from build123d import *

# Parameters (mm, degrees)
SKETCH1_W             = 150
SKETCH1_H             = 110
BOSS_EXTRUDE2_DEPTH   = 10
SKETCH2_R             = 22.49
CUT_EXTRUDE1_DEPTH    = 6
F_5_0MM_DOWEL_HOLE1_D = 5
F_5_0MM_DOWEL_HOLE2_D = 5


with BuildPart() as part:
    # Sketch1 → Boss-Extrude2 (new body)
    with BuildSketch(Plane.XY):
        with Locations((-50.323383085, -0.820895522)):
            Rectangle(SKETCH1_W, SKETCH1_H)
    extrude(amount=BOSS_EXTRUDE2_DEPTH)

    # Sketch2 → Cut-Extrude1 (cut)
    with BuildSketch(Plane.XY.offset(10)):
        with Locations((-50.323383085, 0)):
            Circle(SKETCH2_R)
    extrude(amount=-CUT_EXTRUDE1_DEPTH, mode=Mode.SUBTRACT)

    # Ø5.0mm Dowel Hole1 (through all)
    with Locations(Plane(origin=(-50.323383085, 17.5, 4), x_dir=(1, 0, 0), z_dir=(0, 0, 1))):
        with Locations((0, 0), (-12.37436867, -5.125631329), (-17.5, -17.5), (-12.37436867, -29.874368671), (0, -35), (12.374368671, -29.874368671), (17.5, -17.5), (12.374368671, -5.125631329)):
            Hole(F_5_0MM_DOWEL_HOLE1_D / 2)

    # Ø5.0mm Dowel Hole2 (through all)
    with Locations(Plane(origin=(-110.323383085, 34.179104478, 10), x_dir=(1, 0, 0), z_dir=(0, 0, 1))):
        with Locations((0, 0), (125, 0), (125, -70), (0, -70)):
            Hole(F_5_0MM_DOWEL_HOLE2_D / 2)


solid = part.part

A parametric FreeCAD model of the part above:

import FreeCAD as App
import Part
import Sketcher


def add_polygon(sketch, points):
    """Adds a closed chain of lines whose ends are joined by coincident constraints."""
    first, n = sketch.GeometryCount, len(points)
    for a, b in zip(points, points[1:] + points[:1]):
        sketch.addGeometry(Part.LineSegment(App.Vector(*a, 0), App.Vector(*b, 0)), False)
    for i in range(n):
        sketch.addConstraint(Sketcher.Constraint("Coincident", first + i, 2, first + (i + 1) % n, 1))

doc = App.newDocument("Part")
body = doc.addObject("PartDesign::Body", "Body")

sketch1 = body.newObject("Sketcher::SketchObject", "Sketch")
sketch1.AttachmentSupport = (doc.getObject("XY_Plane"), [""])
sketch1.MapMode = "FlatFace"
add_polygon(sketch1, [(-125.323383, 54.179104), (-125.323383, -55.820896), (24.676617, -55.820896), (24.676617, 54.179104)])
sketch1.addConstraint(Sketcher.Constraint("Vertical", 0))
sketch1.addConstraint(Sketcher.Constraint("Horizontal", 1))
sketch1.addConstraint(Sketcher.Constraint("Vertical", 2))
sketch1.addConstraint(Sketcher.Constraint("Horizontal", 3))
sketch1.addConstraint(Sketcher.Constraint("DistanceX", 1, 1, 1, 2, 150.0))
sketch1.addConstraint(Sketcher.Constraint("DistanceY", 0, 2, 0, 1, 110.0))
sketch1.addConstraint(Sketcher.Constraint("DistanceX", 0, 2, -1, 1, 125.323383))
sketch1.addConstraint(Sketcher.Constraint("DistanceY", 0, 2, -1, 1, 55.820896))
pad1 = body.newObject("PartDesign::Pad", "Pad")
pad1.Profile = sketch1
pad1.Length = 10

sketch2 = body.newObject("Sketcher::SketchObject", "Sketch001")
sketch2.AttachmentSupport = (doc.getObject("XY_Plane"), [""])
sketch2.MapMode = "FlatFace"
sketch2.AttachmentOffset = App.Placement(App.Vector(0, 0, 10), App.Rotation())
sketch2.addGeometry(Part.Circle(App.Vector(-50.323383, 0, 0), App.Vector(0, 0, 1), 22.49), False)
sketch2.addConstraint(Sketcher.Constraint("PointOnObject", 0, 3, -1))
sketch2.addConstraint(Sketcher.Constraint("Diameter", 0, 44.98))
sketch2.addConstraint(Sketcher.Constraint("DistanceX", 0, 3, -1, 1, 50.323383))
pocket1 = body.newObject("PartDesign::Pocket", "Pocket")
pocket1.Profile = sketch2
pocket1.Length = 6

sketch3 = body.newObject("Sketcher::SketchObject", "Sketch002")
sketch3.AttachmentSupport = (doc.getObject("XY_Plane"), [""])
sketch3.MapMode = "FlatFace"
sketch3.AttachmentOffset = App.Placement(App.Vector(0, 0, 4), App.Rotation())
sketch3.addGeometry(Part.Circle(App.Vector(-50.323383, 17.5, 0), App.Vector(0, 0, 1), 2.5), False)
sketch3.addGeometry(Part.Circle(App.Vector(-62.697752, 12.374369, 0), App.Vector(0, 0, 1), 2.5), False)
sketch3.addGeometry(Part.Circle(App.Vector(-67.823383, 0, 0), App.Vector(0, 0, 1), 2.5), False)
sketch3.addGeometry(Part.Circle(App.Vector(-62.697752, -12.374369, 0), App.Vector(0, 0, 1), 2.5), False)
sketch3.addGeometry(Part.Circle(App.Vector(-50.323383, -17.5, 0), App.Vector(0, 0, 1), 2.5), False)
sketch3.addGeometry(Part.Circle(App.Vector(-37.949014, -12.374369, 0), App.Vector(0, 0, 1), 2.5), False)
sketch3.addGeometry(Part.Circle(App.Vector(-32.823383, 0, 0), App.Vector(0, 0, 1), 2.5), False)
sketch3.addGeometry(Part.Circle(App.Vector(-37.949014, 12.374369, 0), App.Vector(0, 0, 1), 2.5), False)
sketch3.addConstraint(Sketcher.Constraint("Equal", 0, 1))
sketch3.addConstraint(Sketcher.Constraint("Equal", 1, 2))
sketch3.addConstraint(Sketcher.Constraint("Equal", 2, 3))
sketch3.addConstraint(Sketcher.Constraint("Equal", 3, 4))
sketch3.addConstraint(Sketcher.Constraint("Equal", 4, 5))
sketch3.addConstraint(Sketcher.Constraint("Equal", 5, 6))
sketch3.addConstraint(Sketcher.Constraint("Equal", 6, 7))
sketch3.addConstraint(Sketcher.Constraint("Symmetric", 1, 3, 3, 3, -1))
sketch3.addConstraint(Sketcher.Constraint("Symmetric", 0, 3, 4, 3, -1))
sketch3.addConstraint(Sketcher.Constraint("Symmetric", 5, 3, 7, 3, -1))
sketch3.addConstraint(Sketcher.Constraint("PointOnObject", 2, 3, -1))
sketch3.addConstraint(Sketcher.Constraint("PointOnObject", 6, 3, -1))
sketch3.addConstraint(Sketcher.Constraint("Horizontal", 3, 3, 5, 3))
sketch3.addConstraint(Sketcher.Constraint("Diameter", 0, 5.0))
sketch3.addConstraint(Sketcher.Constraint("DistanceY", 4, 3, 0, 3, 35.0))
sketch3.addConstraint(Sketcher.Constraint("DistanceX", 2, 3, 0, 3, 17.5))
sketch3.addConstraint(Sketcher.Constraint("DistanceX", 0, 3, 6, 3, 17.5))
sketch3.addConstraint(Sketcher.Constraint("DistanceX", 1, 3, -1, 1, 62.697752))
sketch3.addConstraint(Sketcher.Constraint("DistanceY", -1, 1, 1, 3, 12.374369))
sketch3.addConstraint(Sketcher.Constraint("DistanceX", 1, 3, 0, 3, 12.374369))
sketch3.addConstraint(Sketcher.Constraint("DistanceX", 4, 3, 5, 3, 12.374369))
doc.recompute()
hole = body.newObject("PartDesign::Hole", "Hole")
hole.Profile = sketch3
hole.ThreadType = "None"
hole.Diameter = 5
hole.DepthType = "ThroughAll"

sketch4 = body.newObject("Sketcher::SketchObject", "Sketch003")
sketch4.AttachmentSupport = (doc.getObject("XY_Plane"), [""])
sketch4.MapMode = "FlatFace"
sketch4.AttachmentOffset = App.Placement(App.Vector(0, 0, 10), App.Rotation())
sketch4.addGeometry(Part.Circle(App.Vector(-110.323383, 34.179104, 0), App.Vector(0, 0, 1), 2.5), False)
sketch4.addGeometry(Part.Circle(App.Vector(14.676617, 34.179104, 0), App.Vector(0, 0, 1), 2.5), False)
sketch4.addGeometry(Part.Circle(App.Vector(14.676617, -35.820896, 0), App.Vector(0, 0, 1), 2.5), False)
sketch4.addGeometry(Part.Circle(App.Vector(-110.323383, -35.820896, 0), App.Vector(0, 0, 1), 2.5), False)
sketch4.addConstraint(Sketcher.Constraint("Equal", 0, 1))
sketch4.addConstraint(Sketcher.Constraint("Equal", 1, 2))
sketch4.addConstraint(Sketcher.Constraint("Equal", 2, 3))
sketch4.addConstraint(Sketcher.Constraint("Horizontal", 0, 3, 1, 3))
sketch4.addConstraint(Sketcher.Constraint("Horizontal", 2, 3, 3, 3))
sketch4.addConstraint(Sketcher.Constraint("Vertical", 1, 3, 2, 3))
sketch4.addConstraint(Sketcher.Constraint("Vertical", 0, 3, 3, 3))
sketch4.addConstraint(Sketcher.Constraint("Diameter", 0, 5.0))
sketch4.addConstraint(Sketcher.Constraint("DistanceX", 0, 3, 1, 3, 125.0))
sketch4.addConstraint(Sketcher.Constraint("DistanceY", 2, 3, 1, 3, 70.0))
sketch4.addConstraint(Sketcher.Constraint("DistanceX", 0, 3, -1, 1, 110.323383))
sketch4.addConstraint(Sketcher.Constraint("DistanceY", -1, 1, 0, 3, 34.179104))
doc.recompute()
hole2 = body.newObject("PartDesign::Hole", "Hole001")
hole2.Profile = sketch4
hole2.ThreadType = "None"
hole2.Diameter = 5
hole2.DepthType = "ThroughAll"

doc.recompute()
